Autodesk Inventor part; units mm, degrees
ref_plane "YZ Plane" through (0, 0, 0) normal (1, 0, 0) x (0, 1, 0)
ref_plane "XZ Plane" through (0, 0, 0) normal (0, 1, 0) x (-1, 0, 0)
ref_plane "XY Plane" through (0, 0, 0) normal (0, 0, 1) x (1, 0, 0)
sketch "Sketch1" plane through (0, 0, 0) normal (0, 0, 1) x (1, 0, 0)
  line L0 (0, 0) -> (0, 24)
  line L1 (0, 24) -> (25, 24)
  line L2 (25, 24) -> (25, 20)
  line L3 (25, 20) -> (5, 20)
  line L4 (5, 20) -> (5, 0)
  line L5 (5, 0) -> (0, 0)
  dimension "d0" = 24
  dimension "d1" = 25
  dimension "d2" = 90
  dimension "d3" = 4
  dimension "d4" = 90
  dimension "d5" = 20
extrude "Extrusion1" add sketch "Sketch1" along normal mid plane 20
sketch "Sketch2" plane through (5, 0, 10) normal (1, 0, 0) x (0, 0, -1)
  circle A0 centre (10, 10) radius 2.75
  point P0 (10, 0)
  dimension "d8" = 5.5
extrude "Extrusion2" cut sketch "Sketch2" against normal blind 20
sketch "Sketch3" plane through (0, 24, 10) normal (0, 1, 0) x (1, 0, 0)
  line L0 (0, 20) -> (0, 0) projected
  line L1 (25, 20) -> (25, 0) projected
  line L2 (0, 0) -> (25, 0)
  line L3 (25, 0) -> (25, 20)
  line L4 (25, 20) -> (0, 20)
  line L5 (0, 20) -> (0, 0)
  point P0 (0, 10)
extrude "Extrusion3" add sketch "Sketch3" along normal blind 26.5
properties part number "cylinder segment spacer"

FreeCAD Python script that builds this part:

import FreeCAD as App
import Part
import Sketcher

V = App.Vector


def add_polygon(sketch, points):
    """Adds a closed chain of lines whose ends are joined by coincident constraints."""
    first, n = sketch.GeometryCount, len(points)
    for a, b in zip(points, points[1:] + points[:1]):
        sketch.addGeometry(Part.LineSegment(App.Vector(*a, 0), App.Vector(*b, 0)), False)
    for i in range(n):
        sketch.addConstraint(Sketcher.Constraint("Coincident", first + i, 2, first + (i + 1) % n, 1))

doc = App.newDocument("Part")
body = doc.addObject("PartDesign::Body", "Body")

# Sketch on XY plane
sketch1 = body.newObject("Sketcher::SketchObject", "Sketch")
sketch1.AttachmentSupport = (doc.getObject("XY_Plane"), [""])
sketch1.MapMode = "FlatFace"
add_polygon(sketch1, [(0, 24), (0, 0), (5, 0), (5, 20), (25, 20), (25, 24)])  # lines 0-5
sketch1.addConstraint(Sketcher.Constraint("Vertical", 0))
sketch1.addConstraint(Sketcher.Constraint("Horizontal", 1))
sketch1.addConstraint(Sketcher.Constraint("Vertical", 2))
sketch1.addConstraint(Sketcher.Constraint("Horizontal", 3))
sketch1.addConstraint(Sketcher.Constraint("Vertical", 4))
sketch1.addConstraint(Sketcher.Constraint("Horizontal", 5))
sketch1.addConstraint(Sketcher.Constraint("Coincident", 0, 2, -1, 1))
sketch1.addConstraint(Sketcher.Constraint("Equal", 3, 2))
sketch1.addConstraint(Sketcher.Constraint("DistanceX", 3, 1, 3, 2, 20.0))
sketch1.addConstraint(Sketcher.Constraint("DistanceX", 5, 2, 5, 1, 25.0))
sketch1.addConstraint(Sketcher.Constraint("DistanceY", 0, 2, 0, 1, 24.0))
pad1 = body.newObject("PartDesign::Pad", "Pad")
pad1.Profile = sketch1
pad1.Length = 20
pad1.Midplane = True

# Sketch on YZ plane
sketch2 = body.newObject("Sketcher::SketchObject", "Sketch001")
sketch2.AttachmentSupport = (doc.getObject("YZ_Plane"), [""])
sketch2.MapMode = "FlatFace"
sketch2.AttachmentOffset = App.Placement(V(0, 0, 5), App.Rotation())
sketch2.addGeometry(Part.Circle(V(10, 0, 0), V(0, 0, 1), 2.8), False)
sketch2.addConstraint(Sketcher.Constraint("PointOnObject", 0, 3, -1))
sketch2.addConstraint(Sketcher.Constraint("Diameter", 0, 5.5))
sketch2.addConstraint(Sketcher.Constraint("DistanceX", -1, 1, 0, 3, 10.0))
pocket1 = body.newObject("PartDesign::Pocket", "Pocket")
pocket1.Profile = sketch2
pocket1.Length = 20

# Sketch on XZ plane
sketch3 = body.newObject("Sketcher::SketchObject", "Sketch002")
sketch3.AttachmentSupport = (doc.getObject("XZ_Plane"), [""])
sketch3.MapMode = "FlatFace"
sketch3.AttachmentOffset = App.Placement(V(0, 0, -24), App.Rotation())
add_polygon(sketch3, [(25, -10), (0, -10), (0, 10), (25, 10)])  # lines 0-3
sketch3.addConstraint(Sketcher.Constraint("Horizontal", 0))
sketch3.addConstraint(Sketcher.Constraint("Vertical", 1))
sketch3.addConstraint(Sketcher.Constraint("Horizontal", 2))
sketch3.addConstraint(Sketcher.Constraint("Vertical", 3))
sketch3.addConstraint(Sketcher.Constraint("Symmetric", 0, 2, 1, 2, -1, 1))
sketch3.addConstraint(Sketcher.Constraint("DistanceX", 0, 2, 0, 1, 25.0))
sketch3.addConstraint(Sketcher.Constraint("DistanceY", 1, 1, 1, 2, 20.0))
pad2 = body.newObject("PartDesign::Pad", "Pad001")
pad2.Profile = sketch3
pad2.Length = 26.5
pad2.Reversed = True

doc.recompute()
